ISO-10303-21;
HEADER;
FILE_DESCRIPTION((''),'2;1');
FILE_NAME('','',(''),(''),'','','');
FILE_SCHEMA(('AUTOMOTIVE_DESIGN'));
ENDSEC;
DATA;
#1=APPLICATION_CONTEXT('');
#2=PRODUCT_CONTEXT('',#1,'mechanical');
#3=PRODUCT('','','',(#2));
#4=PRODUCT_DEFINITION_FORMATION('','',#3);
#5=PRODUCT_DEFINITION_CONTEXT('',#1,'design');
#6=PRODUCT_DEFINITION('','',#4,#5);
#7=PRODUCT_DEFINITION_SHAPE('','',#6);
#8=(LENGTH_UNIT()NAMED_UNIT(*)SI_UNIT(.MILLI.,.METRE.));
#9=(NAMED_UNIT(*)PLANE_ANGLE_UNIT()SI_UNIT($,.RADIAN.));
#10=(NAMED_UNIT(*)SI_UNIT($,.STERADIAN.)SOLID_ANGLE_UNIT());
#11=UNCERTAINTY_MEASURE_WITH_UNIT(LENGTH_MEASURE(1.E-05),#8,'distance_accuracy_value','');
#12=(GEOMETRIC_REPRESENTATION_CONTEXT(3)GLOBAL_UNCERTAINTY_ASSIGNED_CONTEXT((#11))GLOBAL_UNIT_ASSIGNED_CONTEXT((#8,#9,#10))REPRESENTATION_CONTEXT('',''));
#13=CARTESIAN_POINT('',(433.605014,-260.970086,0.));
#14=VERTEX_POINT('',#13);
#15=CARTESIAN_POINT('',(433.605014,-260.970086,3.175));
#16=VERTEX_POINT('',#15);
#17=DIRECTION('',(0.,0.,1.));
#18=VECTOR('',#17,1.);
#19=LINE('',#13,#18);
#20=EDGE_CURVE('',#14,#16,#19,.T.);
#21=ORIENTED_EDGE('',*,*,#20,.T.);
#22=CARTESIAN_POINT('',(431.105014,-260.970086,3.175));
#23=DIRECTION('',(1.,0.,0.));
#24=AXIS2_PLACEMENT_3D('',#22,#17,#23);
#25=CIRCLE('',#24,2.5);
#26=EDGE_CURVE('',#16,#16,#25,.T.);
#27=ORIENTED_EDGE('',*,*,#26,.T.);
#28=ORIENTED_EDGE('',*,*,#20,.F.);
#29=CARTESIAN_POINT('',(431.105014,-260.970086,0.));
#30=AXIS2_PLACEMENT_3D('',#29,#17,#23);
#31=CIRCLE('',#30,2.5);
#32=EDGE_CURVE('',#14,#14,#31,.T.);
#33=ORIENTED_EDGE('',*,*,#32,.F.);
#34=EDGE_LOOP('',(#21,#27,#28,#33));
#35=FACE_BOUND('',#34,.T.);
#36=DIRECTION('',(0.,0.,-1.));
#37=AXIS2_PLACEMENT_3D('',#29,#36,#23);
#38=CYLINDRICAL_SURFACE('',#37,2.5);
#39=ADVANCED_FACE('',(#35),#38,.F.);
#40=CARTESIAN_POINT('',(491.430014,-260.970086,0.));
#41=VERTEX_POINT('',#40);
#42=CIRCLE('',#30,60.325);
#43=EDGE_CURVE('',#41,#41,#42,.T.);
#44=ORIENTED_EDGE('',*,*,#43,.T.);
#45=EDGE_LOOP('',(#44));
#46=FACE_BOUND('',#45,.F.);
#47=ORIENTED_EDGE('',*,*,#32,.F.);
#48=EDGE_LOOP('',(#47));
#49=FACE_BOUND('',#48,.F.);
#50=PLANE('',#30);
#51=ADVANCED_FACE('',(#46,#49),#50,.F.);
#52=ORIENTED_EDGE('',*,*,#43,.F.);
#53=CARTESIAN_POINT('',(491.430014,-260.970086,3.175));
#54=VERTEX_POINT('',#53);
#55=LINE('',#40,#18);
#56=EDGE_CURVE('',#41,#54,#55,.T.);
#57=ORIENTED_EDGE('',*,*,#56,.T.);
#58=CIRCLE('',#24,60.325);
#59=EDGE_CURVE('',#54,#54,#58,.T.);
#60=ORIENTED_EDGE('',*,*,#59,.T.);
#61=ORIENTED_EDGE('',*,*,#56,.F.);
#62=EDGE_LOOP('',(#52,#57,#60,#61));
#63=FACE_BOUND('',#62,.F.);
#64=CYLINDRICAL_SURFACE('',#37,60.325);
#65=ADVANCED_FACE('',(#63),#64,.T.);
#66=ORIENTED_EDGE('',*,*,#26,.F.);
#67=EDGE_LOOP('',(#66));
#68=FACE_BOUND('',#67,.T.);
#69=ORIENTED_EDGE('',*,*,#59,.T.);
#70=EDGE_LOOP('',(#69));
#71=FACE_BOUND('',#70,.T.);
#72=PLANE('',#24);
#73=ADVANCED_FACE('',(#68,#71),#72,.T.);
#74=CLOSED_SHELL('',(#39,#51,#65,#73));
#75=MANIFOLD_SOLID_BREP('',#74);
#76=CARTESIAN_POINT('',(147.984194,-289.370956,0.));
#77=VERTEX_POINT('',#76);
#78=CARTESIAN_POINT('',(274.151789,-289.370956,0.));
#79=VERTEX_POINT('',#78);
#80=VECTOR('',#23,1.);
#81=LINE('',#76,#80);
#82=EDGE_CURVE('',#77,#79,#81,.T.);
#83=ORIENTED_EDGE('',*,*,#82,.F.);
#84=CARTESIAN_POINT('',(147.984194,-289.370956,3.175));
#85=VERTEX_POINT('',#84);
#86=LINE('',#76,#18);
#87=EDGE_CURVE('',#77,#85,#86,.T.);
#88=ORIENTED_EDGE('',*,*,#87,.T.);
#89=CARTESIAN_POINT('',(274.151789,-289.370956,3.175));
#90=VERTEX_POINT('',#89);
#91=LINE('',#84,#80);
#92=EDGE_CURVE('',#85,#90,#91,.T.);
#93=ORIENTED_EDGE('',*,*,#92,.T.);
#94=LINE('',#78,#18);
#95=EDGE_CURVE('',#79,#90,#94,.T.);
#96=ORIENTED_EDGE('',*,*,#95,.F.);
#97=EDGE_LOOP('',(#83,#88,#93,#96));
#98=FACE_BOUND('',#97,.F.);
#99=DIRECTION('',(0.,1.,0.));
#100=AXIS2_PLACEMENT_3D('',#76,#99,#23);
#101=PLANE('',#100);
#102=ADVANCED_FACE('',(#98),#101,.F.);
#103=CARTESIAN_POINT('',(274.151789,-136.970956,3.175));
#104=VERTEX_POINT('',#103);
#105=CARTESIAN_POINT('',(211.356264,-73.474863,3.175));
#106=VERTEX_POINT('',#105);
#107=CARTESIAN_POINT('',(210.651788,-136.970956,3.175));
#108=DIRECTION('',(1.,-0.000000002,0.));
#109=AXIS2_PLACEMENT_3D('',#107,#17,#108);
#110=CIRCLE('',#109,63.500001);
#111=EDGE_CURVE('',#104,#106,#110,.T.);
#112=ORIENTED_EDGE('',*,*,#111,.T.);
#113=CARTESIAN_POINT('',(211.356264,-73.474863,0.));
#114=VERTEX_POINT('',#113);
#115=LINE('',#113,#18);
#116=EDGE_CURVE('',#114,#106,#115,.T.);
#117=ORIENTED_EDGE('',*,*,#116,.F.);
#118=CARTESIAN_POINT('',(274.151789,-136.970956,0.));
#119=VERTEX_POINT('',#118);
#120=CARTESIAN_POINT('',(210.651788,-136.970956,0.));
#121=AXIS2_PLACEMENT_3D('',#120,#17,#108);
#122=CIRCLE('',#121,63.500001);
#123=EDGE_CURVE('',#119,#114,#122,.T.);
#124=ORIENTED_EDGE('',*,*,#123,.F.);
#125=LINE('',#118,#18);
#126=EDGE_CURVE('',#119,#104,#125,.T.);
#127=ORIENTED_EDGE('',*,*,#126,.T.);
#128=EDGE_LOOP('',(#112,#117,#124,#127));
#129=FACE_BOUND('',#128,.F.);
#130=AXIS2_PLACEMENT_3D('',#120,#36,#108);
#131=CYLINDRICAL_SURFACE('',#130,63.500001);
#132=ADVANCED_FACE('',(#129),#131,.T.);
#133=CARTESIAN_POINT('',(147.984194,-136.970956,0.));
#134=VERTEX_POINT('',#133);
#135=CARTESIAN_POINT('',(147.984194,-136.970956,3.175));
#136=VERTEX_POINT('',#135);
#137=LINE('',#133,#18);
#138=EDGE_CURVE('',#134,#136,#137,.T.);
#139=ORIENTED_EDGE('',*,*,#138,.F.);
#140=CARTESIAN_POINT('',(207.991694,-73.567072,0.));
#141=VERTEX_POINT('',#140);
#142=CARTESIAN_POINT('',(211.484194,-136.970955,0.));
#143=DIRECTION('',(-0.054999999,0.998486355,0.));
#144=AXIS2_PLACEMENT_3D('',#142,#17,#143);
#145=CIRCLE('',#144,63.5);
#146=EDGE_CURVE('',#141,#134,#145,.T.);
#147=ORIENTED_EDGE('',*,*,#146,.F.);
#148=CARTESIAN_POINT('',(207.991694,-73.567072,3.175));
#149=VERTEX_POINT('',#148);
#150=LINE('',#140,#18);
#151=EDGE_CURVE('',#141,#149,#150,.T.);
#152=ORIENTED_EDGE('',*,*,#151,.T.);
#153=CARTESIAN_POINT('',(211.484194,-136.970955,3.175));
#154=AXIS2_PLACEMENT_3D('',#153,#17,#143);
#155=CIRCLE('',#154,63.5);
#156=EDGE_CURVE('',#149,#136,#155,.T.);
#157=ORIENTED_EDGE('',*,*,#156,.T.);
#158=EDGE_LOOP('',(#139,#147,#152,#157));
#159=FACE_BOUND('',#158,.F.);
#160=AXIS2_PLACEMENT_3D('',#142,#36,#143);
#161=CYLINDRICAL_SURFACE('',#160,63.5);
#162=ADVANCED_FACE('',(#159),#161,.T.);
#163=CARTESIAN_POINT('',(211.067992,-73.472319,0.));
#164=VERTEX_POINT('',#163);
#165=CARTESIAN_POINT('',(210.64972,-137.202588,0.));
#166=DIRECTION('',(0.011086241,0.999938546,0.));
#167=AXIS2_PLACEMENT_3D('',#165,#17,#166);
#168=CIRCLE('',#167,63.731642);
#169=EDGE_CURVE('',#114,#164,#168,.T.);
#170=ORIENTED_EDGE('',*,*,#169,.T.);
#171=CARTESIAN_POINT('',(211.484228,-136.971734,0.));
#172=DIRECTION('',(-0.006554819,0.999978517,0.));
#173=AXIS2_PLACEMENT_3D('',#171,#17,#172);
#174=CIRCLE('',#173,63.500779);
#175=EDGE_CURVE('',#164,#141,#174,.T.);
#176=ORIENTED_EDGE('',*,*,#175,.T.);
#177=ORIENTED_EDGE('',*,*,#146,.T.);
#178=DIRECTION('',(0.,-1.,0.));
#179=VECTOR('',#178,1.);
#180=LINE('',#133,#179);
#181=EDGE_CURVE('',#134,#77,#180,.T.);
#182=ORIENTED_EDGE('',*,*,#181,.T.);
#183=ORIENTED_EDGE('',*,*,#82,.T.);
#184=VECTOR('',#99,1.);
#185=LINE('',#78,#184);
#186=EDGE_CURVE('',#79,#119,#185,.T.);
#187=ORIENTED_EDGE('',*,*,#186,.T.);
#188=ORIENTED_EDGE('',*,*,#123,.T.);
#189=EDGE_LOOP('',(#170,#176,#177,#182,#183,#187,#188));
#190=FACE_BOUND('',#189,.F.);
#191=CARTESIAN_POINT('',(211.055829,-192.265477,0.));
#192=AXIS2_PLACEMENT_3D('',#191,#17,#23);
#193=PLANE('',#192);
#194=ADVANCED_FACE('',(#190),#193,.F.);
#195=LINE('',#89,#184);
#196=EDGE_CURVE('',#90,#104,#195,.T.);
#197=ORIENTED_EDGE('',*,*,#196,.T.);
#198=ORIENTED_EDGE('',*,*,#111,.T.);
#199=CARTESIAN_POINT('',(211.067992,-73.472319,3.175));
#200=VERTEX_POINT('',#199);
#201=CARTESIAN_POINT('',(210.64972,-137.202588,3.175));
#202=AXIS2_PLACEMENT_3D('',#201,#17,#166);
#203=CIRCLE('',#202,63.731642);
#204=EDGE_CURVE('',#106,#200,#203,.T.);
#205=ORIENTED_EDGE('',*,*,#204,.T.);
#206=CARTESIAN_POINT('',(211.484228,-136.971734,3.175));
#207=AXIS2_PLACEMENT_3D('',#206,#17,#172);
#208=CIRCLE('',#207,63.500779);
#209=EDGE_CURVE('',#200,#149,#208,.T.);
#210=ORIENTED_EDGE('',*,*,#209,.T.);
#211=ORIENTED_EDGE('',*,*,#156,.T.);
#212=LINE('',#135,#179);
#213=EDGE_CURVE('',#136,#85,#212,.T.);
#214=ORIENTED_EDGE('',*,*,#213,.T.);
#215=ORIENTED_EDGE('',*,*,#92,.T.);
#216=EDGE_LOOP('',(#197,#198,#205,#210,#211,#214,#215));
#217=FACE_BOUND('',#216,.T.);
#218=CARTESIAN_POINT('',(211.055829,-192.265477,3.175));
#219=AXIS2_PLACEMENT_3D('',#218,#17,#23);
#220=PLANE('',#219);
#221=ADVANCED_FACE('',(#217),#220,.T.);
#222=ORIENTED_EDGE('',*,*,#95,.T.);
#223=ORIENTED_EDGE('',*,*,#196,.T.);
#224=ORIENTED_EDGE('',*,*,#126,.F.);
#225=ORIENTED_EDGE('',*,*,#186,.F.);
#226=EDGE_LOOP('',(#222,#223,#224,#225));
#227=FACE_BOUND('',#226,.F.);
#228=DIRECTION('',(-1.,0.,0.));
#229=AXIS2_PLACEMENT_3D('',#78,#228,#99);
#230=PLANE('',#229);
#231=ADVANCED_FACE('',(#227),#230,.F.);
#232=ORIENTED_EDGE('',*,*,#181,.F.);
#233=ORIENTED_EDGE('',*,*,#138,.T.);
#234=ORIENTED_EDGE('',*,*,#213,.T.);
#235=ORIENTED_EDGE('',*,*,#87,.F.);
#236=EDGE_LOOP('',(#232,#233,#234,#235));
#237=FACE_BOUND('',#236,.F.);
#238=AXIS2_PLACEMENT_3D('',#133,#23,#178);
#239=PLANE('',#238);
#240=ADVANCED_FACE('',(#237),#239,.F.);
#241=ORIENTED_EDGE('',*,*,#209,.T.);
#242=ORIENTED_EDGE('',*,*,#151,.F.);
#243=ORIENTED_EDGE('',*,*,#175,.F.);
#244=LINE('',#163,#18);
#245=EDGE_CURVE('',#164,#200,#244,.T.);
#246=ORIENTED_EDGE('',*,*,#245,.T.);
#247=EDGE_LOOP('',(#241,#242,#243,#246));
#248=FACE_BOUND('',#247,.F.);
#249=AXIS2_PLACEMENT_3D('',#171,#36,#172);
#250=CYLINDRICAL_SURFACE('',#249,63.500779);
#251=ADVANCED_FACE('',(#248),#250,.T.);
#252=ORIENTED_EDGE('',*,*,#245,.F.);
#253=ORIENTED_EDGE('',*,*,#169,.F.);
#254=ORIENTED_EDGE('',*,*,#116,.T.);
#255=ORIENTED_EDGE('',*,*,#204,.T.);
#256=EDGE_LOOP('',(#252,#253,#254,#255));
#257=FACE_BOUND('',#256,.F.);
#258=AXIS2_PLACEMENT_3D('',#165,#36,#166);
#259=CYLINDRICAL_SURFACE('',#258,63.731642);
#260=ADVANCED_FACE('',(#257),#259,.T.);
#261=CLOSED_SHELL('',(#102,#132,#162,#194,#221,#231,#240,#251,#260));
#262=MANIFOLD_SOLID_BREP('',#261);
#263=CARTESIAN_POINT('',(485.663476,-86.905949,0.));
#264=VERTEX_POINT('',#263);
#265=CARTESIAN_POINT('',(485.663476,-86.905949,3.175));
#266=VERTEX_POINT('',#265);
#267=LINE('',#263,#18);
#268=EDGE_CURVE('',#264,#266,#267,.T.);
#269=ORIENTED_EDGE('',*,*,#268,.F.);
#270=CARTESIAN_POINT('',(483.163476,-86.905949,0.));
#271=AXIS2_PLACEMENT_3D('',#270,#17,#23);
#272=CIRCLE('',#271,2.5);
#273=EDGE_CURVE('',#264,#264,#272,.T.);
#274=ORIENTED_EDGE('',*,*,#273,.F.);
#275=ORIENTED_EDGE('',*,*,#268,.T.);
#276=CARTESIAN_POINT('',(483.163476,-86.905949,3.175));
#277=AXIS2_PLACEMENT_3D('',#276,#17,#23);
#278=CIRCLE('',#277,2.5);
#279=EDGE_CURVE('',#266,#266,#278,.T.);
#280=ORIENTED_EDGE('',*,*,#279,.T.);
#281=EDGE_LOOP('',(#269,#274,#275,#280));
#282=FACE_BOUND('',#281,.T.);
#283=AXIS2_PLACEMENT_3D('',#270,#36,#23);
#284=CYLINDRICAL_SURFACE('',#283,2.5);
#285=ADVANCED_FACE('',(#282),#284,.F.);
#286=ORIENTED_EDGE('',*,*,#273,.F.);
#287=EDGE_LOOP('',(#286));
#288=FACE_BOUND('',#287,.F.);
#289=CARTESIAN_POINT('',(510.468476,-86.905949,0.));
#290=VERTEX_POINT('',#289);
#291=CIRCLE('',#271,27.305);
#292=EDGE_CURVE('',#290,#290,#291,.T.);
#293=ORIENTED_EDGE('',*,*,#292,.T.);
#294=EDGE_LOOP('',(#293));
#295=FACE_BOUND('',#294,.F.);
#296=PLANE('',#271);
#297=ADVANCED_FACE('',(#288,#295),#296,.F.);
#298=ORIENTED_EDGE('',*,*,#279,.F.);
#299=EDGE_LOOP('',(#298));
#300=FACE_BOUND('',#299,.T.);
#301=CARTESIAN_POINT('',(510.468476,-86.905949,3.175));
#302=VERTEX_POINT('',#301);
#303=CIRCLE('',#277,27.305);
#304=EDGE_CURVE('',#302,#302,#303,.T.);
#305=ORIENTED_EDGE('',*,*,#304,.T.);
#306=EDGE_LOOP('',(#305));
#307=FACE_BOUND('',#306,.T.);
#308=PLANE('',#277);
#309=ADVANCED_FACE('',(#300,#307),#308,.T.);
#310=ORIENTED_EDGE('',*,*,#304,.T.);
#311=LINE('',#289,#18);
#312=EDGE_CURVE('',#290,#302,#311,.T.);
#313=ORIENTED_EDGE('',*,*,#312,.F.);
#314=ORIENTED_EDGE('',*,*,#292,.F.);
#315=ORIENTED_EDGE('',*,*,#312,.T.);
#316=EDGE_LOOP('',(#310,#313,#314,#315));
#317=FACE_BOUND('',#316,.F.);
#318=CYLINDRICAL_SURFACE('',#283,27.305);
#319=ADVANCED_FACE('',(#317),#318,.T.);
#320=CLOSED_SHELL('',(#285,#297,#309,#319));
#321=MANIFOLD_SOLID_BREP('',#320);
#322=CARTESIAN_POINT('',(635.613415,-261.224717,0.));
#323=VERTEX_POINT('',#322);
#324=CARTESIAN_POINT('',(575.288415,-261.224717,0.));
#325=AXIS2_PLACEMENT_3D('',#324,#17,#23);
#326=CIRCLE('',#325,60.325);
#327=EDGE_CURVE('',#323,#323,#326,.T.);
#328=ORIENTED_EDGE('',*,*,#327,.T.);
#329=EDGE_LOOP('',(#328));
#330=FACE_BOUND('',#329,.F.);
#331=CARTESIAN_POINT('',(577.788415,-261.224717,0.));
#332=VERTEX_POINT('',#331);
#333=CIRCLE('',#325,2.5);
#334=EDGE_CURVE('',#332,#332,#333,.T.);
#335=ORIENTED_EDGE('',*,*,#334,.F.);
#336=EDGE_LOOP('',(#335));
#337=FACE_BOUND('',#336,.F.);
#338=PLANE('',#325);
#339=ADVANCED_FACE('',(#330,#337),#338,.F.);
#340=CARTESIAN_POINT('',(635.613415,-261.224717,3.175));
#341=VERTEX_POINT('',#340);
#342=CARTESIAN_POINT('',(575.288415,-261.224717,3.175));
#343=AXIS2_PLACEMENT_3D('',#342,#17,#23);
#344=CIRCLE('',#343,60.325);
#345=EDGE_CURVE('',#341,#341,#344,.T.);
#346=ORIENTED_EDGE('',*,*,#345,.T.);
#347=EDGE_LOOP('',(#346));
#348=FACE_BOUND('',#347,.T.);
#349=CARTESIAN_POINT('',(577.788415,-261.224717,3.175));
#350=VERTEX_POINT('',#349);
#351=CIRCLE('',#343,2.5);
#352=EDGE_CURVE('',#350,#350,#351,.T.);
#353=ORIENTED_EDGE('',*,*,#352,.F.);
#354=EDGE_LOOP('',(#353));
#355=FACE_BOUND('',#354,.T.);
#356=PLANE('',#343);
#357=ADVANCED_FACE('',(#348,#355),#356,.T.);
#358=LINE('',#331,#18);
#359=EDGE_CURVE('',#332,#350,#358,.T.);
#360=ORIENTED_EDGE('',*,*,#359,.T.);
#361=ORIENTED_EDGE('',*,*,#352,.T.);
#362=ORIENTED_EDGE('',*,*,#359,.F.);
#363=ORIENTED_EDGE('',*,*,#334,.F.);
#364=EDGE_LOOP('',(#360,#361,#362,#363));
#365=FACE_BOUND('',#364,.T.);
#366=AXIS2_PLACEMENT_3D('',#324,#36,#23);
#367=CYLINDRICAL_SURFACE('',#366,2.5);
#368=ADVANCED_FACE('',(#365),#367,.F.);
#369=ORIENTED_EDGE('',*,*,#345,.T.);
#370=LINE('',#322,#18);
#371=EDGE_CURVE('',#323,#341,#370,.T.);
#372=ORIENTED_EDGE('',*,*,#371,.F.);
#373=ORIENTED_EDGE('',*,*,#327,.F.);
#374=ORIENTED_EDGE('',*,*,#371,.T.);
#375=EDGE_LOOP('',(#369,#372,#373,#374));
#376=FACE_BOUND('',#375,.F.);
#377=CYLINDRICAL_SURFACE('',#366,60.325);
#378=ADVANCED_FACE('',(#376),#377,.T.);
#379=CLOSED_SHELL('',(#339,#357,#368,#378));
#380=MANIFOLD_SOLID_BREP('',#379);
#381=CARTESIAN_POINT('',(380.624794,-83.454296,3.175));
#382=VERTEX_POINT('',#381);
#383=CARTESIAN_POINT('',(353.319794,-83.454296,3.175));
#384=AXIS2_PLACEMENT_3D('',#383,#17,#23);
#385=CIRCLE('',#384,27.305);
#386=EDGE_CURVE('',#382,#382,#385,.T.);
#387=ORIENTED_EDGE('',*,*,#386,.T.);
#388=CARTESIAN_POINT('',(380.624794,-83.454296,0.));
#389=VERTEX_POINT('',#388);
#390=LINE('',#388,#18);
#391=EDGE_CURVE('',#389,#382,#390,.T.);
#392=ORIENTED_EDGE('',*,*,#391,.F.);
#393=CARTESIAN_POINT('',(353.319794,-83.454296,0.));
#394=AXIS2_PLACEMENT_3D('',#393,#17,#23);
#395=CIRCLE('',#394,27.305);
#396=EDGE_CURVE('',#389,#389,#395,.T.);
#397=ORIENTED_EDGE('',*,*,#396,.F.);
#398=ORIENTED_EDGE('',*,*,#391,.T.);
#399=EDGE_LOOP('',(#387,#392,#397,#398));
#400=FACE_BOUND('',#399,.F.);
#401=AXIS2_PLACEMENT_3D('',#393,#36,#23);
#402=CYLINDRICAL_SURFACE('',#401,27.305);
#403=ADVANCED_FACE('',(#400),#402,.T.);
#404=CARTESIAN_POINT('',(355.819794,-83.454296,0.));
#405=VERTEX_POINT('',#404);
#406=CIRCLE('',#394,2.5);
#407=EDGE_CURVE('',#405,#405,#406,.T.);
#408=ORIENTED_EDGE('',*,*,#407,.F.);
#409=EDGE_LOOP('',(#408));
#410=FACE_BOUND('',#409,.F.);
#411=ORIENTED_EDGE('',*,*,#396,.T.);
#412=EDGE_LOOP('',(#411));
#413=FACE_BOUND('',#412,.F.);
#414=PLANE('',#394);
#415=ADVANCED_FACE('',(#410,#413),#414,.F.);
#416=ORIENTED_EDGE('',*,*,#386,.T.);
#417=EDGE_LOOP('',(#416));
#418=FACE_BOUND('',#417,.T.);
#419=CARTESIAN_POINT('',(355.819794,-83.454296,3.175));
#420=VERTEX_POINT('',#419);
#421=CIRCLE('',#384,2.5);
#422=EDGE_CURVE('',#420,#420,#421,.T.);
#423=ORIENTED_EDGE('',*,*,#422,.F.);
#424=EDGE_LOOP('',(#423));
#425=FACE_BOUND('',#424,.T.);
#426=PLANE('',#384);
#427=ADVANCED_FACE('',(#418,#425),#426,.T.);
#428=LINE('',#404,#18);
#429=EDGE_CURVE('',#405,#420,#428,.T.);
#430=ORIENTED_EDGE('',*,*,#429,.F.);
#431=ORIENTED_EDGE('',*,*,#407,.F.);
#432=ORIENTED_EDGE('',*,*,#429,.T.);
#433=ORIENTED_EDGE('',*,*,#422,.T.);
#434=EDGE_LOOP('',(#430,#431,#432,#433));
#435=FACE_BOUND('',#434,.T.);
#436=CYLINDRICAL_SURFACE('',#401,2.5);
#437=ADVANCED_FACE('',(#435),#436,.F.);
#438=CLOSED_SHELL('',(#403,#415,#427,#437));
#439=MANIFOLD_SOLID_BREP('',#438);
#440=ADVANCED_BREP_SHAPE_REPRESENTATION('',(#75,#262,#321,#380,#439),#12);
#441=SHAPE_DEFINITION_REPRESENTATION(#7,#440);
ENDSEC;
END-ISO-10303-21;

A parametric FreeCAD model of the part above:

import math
import FreeCAD as App
import Part
import Sketcher
from FreeCAD import Vector
Q = App.Units.Quantity

doc = App.newDocument("Part")
body = doc.addObject("PartDesign::Body", "Body")
body.AllowCompound = True

# Sketch on XY plane
sketch1 = doc.addObject("Sketcher::SketchObject", "Sketch")
body.addObject(sketch1)
sketch1.AttachmentSupport = (doc.XY_Plane, [""])
sketch1.MapMode = "FlatFace"
sketch1.addGeometry([
    Part.Circle(Vector(431.105014, -260.970086, 0), Vector(0, 0, 1), 60.325),  # 0
    Part.Circle(Vector(431.105014, -260.970086, 0), Vector(0, 0, 1), 2.5),  # 1
    Part.Circle(Vector(575.288415, -261.224717, 0), Vector(0, 0, 1), 60.325),  # 2
    Part.Circle(Vector(575.288415, -261.224717, 0), Vector(0, 0, 1), 2.5),  # 3
    Part.Circle(Vector(483.163476, -86.905949, 0), Vector(0, 0, 1), 27.305),  # 4
    Part.Circle(Vector(483.163476, -86.905949, 0), Vector(0, 0, 1), 2.5),  # 5
    Part.ArcOfCircle(Part.Circle(Vector(211.484194, -136.970955, 0), Vector(0, 0, 1), 63.5), math.radians(93.152859), math.radians(180.000001)),  # 6
    Part.LineSegment(Vector(147.984194, -136.970956, 0), Vector(147.984194, -289.370956, 0)),  # 7
    Part.LineSegment(Vector(147.984194, -289.370956, 0), Vector(274.151789, -289.370956, 0)),  # 8
    Part.LineSegment(Vector(274.151789, -289.370956, 0), Vector(274.151789, -136.970956, 0)),  # 9
    Part.ArcOfCircle(Part.Circle(Vector(210.651788, -136.970956, 0), Vector(0, 0, 1), 63.500001), math.radians(0), math.radians(89.364341)),  # 10
    Part.ArcOfCircle(Part.Circle(Vector(210.64972, -137.202588, 0), Vector(0, 0, 1), 63.731642), math.radians(89.364792), math.radians(89.623964)),  # 11
    Part.ArcOfCircle(Part.Circle(Vector(211.484228, -136.971734, 0), Vector(0, 0, 1), 63.500779), math.radians(90.375566), math.radians(93.152851)),  # 12
    Part.Circle(Vector(353.319794, -83.454296, 0), Vector(0, 0, 1), 27.305),  # 13
    Part.Circle(Vector(353.319794, -83.454296, 0), Vector(0, 0, 1), 2.5),  # 14
], False)
sketch1.addConstraint([
    Sketcher.Constraint("Tangent", 6, 2, 7, 1),
    Sketcher.Constraint("Coincident", 7, 2, 8, 1),
    Sketcher.Constraint("Coincident", 8, 2, 9, 1),
    Sketcher.Constraint("Tangent", 9, 2, 10, 1),
    Sketcher.Constraint("Coincident", 10, 2, 11, 1),
    Sketcher.Constraint("Coincident", 11, 2, 12, 1),
    Sketcher.Constraint("Tangent", 12, 2, 6, 1),
    Sketcher.Constraint("Vertical", 7),
    Sketcher.Constraint("Horizontal", 8),
    Sketcher.Constraint("Vertical", 9),
    Sketcher.Constraint("Coincident", 1, 3, 0, 3),
    Sketcher.Constraint("Coincident", 3, 3, 2, 3),
    Sketcher.Constraint("Coincident", 5, 3, 4, 3),
    Sketcher.Constraint("Coincident", 14, 3, 13, 3),
    Sketcher.Constraint("Equal", 0, 2),
    Sketcher.Constraint("Equal", 1, 3),
    Sketcher.Constraint("Equal", 3, 5),
    Sketcher.Constraint("Equal", 6, 10),
    Sketcher.Constraint("Equal", 4, 13),
    Sketcher.Constraint("Equal", 5, 14),
    Sketcher.Constraint("Horizontal", 6, 3, 10, 3),
    Sketcher.Constraint("Radius", 6, Q("2.5 in")),
    Sketcher.Constraint("Diameter", 0, Q("4.75 in")),
    Sketcher.Constraint("Diameter", 4, Q("2.15 in")),
    Sketcher.Constraint("DistanceY", 7, 2, 7, 1, Q("6 in")),
    Sketcher.Constraint("Diameter", 1, 5.0),
    Sketcher.Constraint("Radius", 11, 63.731642),
    Sketcher.Constraint("Radius", 12, 63.500779),
    Sketcher.Constraint("DistanceY", 10, 2, 11, 2, Q("0.0001002 in")),
    Sketcher.Constraint("DistanceX", 12, 2, 6, 3, Q("0.1375 in")),
    Sketcher.Constraint("DistanceX", 0, 3, 2, 3, 144.183401),
    Sketcher.Constraint("DistanceX", 6, 3, 13, 3, 141.8356),
    Sketcher.Constraint("DistanceX", 11, 2, 6, 3, 0.416202),
    Sketcher.Constraint("DistanceX", 8, 1, 8, 2, 126.167595),
    Sketcher.Constraint("DistanceY", 4, 3, -1, 1, 86.905949),
    Sketcher.Constraint("DistanceX", -1, 1, 10, 3, 210.651788),
    Sketcher.Constraint("DistanceY", 11, 3, -1, 1, 137.202588),
    Sketcher.Constraint("DistanceY", 2, 3, 0, 3, 0.254631),
    Sketcher.Constraint("DistanceX", 4, 3, 2, 3, 92.124939),
    Sketcher.Constraint("DistanceX", 6, 3, 0, 3, 219.62082),
    Sketcher.Constraint("DistanceY", 0, 3, 6, 3, 123.999131),
    Sketcher.Constraint("DistanceY", 6, 3, 13, 3, 53.516659),
])
pad1 = doc.addObject("PartDesign::Pad", "Pad")
body.addObject(pad1)
pad1.Profile = sketch1
pad1.Length = Q("0.125 in")

doc.recompute()
